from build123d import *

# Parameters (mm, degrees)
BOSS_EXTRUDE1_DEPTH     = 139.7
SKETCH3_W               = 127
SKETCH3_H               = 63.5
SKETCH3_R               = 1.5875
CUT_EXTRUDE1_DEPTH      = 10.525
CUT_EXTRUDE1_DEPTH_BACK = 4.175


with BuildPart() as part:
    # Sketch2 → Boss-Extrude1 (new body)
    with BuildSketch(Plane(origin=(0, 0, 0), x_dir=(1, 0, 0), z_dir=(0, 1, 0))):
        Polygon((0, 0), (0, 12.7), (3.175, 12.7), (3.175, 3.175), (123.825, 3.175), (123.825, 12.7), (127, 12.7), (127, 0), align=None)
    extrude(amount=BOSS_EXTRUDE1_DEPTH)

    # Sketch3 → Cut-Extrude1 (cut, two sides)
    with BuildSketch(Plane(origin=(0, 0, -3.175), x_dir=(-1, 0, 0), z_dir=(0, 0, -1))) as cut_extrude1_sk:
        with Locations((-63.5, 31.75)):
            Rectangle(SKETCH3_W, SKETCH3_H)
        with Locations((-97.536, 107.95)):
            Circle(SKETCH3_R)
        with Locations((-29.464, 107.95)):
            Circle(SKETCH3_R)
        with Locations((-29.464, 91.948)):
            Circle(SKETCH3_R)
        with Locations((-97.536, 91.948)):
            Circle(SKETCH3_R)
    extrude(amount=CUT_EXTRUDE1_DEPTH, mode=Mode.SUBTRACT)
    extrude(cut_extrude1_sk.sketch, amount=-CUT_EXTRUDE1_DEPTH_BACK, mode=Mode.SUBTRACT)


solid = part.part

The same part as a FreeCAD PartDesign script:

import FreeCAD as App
import Part
import Sketcher
Q = App.Units.Quantity

doc = App.newDocument("Part")
body = doc.addObject("PartDesign::Body", "Body")

# Sketch on XZ plane
sketch1 = body.newObject("Sketcher::SketchObject", "Sketch")
sketch1.AttachmentSupport = (doc.getObject("XZ_Plane"), [""])
sketch1.MapMode = "FlatFace"
sketch1.addGeometry(Part.LineSegment(App.Vector(0, -12.7, 0), App.Vector(0, 0, 0)), False)
sketch1.addGeometry(Part.LineSegment(App.Vector(0, 0, 0), App.Vector(127, 0, 0)), False)
sketch1.addGeometry(Part.LineSegment(App.Vector(127, 0, 0), App.Vector(127, -12.7, 0)), False)
sketch1.addGeometry(Part.LineSegment(App.Vector(127, -12.7, 0), App.Vector(123.825, -12.7, 0)), False)
sketch1.addGeometry(Part.LineSegment(App.Vector(123.825, -12.7, 0), App.Vector(123.825, -3.175, 0)), False)
sketch1.addGeometry(Part.LineSegment(App.Vector(123.825, -3.175, 0), App.Vector(3.175, -3.175, 0)), False)
sketch1.addGeometry(Part.LineSegment(App.Vector(3.175, -3.175, 0), App.Vector(3.175, -12.7, 0)), False)
sketch1.addGeometry(Part.LineSegment(App.Vector(3.175, -12.7, 0), App.Vector(0, -12.7, 0)), False)
sketch1.addConstraint(Sketcher.Constraint("Coincident", 0, 2, 1, 1))
sketch1.addConstraint(Sketcher.Constraint("Coincident", 1, 2, 2, 1))
sketch1.addConstraint(Sketcher.Constraint("Coincident", 2, 2, 3, 1))
sketch1.addConstraint(Sketcher.Constraint("Coincident", 3, 2, 4, 1))
sketch1.addConstraint(Sketcher.Constraint("Coincident", 4, 2, 5, 1))
sketch1.addConstraint(Sketcher.Constraint("Coincident", 5, 2, 6, 1))
sketch1.addConstraint(Sketcher.Constraint("Coincident", 6, 2, 7, 1))
sketch1.addConstraint(Sketcher.Constraint("Coincident", 7, 2, 0, 1))
sketch1.addConstraint(Sketcher.Constraint("Vertical", 0))
sketch1.addConstraint(Sketcher.Constraint("Horizontal", 1))
sketch1.addConstraint(Sketcher.Constraint("Vertical", 2))
sketch1.addConstraint(Sketcher.Constraint("Horizontal", 3))
sketch1.addConstraint(Sketcher.Constraint("Vertical", 4))
sketch1.addConstraint(Sketcher.Constraint("Horizontal", 5))
sketch1.addConstraint(Sketcher.Constraint("Vertical", 6))
sketch1.addConstraint(Sketcher.Constraint("Horizontal", 7))
sketch1.addConstraint(Sketcher.Constraint("Coincident", 0, 2, -1, 1))
sketch1.addConstraint(Sketcher.Constraint("Horizontal", 3, 2, 6, 2))
sketch1.addConstraint(Sketcher.Constraint("Equal", 3, 7))
sketch1.addConstraint(Sketcher.Constraint("DistanceX", 1, 1, 1, 2, Q("5 in")))
sketch1.addConstraint(Sketcher.Constraint("DistanceY", 0, 1, 0, 2, Q("0.5 in")))
sketch1.addConstraint(Sketcher.Constraint("DistanceX", 5, 2, 5, 1, Q("4.75 in")))
sketch1.addConstraint(Sketcher.Constraint("DistanceY", 4, 1, 4, 2, Q("0.375 in")))
pad1 = body.newObject("PartDesign::Pad", "Pad")
pad1.Profile = sketch1
pad1.Length = Q("5.5 in")
pad1.Reversed = True

# Sketch on XY plane
sketch2 = body.newObject("Sketcher::SketchObject", "Sketch001")
sketch2.AttachmentSupport = (doc.getObject("XY_Plane"), [""])
sketch2.MapMode = "FlatFace"
sketch2.AttachmentOffset = App.Placement(App.Vector(0, 0, -0.125 * 25.4), App.Rotation())
sketch2.addGeometry(Part.LineSegment(App.Vector(127, 63.5, 0), App.Vector(127, 0, 0)), False)
sketch2.addGeometry(Part.LineSegment(App.Vector(127, 0, 0), App.Vector(0, 0, 0)), False)
sketch2.addGeometry(Part.LineSegment(App.Vector(0, 0, 0), App.Vector(0, 63.5, 0)), False)
sketch2.addGeometry(Part.LineSegment(App.Vector(0, 63.5, 0), App.Vector(127, 63.5, 0)), False)
sketch2.addGeometry(Part.Circle(App.Vector(97.536, 107.95, 0), App.Vector(0, 0, 1), 1.5875), False)
sketch2.addGeometry(Part.Circle(App.Vector(29.464, 107.95, 0), App.Vector(0, 0, 1), 1.5875), False)
sketch2.addGeometry(Part.Circle(App.Vector(29.464, 91.948, 0), App.Vector(0, 0, 1), 1.5875), False)
sketch2.addGeometry(Part.Circle(App.Vector(97.536, 91.948, 0), App.Vector(0, 0, 1), 1.5875), False)
sketch2.addConstraint(Sketcher.Constraint("Coincident", 0, 2, 1, 1))
sketch2.addConstraint(Sketcher.Constraint("Coincident", 1, 2, 2, 1))
sketch2.addConstraint(Sketcher.Constraint("Coincident", 2, 2, 3, 1))
sketch2.addConstraint(Sketcher.Constraint("Coincident", 3, 2, 0, 1))
sketch2.addConstraint(Sketcher.Constraint("Vertical", 0))
sketch2.addConstraint(Sketcher.Constraint("Horizontal", 1))
sketch2.addConstraint(Sketcher.Constraint("Vertical", 2))
sketch2.addConstraint(Sketcher.Constraint("Horizontal", 3))
sketch2.addConstraint(Sketcher.Constraint("Coincident", 1, 2, -1, 1))
sketch2.addConstraint(Sketcher.Constraint("Equal", 4, 5))
sketch2.addConstraint(Sketcher.Constraint("Equal", 5, 6))
sketch2.addConstraint(Sketcher.Constraint("Equal", 6, 7))
sketch2.addConstraint(Sketcher.Constraint("Horizontal", 4, 3, 5, 3))
sketch2.addConstraint(Sketcher.Constraint("Horizontal", 6, 3, 7, 3))
sketch2.addConstraint(Sketcher.Constraint("Vertical", 5, 3, 6, 3))
sketch2.addConstraint(Sketcher.Constraint("Vertical", 4, 3, 7, 3))
sketch2.addConstraint(Sketcher.Constraint("DistanceX", 1, 2, 1, 1, Q("5 in")))
sketch2.addConstraint(Sketcher.Constraint("Diameter", 4, Q("0.125 in")))
sketch2.addConstraint(Sketcher.Constraint("DistanceY", 0, 2, 0, 1, Q("2.5 in")))
sketch2.addConstraint(Sketcher.Constraint("DistanceX", -1, 1, 4, 3, Q("3.84 in")))
sketch2.addConstraint(Sketcher.Constraint("DistanceY", -1, 1, 4, 3, Q("4.25 in")))
sketch2.addConstraint(Sketcher.Constraint("DistanceX", -1, 1, 5, 3, Q("1.16 in")))
sketch2.addConstraint(Sketcher.Constraint("DistanceY", -1, 1, 6, 3, Q("3.62 in")))
pocket1 = body.newObject("PartDesign::Pocket", "Pocket")
pocket1.Profile = sketch2
pocket1.Type = "ThroughAll"
pocket1.Midplane = True

doc.recompute()
